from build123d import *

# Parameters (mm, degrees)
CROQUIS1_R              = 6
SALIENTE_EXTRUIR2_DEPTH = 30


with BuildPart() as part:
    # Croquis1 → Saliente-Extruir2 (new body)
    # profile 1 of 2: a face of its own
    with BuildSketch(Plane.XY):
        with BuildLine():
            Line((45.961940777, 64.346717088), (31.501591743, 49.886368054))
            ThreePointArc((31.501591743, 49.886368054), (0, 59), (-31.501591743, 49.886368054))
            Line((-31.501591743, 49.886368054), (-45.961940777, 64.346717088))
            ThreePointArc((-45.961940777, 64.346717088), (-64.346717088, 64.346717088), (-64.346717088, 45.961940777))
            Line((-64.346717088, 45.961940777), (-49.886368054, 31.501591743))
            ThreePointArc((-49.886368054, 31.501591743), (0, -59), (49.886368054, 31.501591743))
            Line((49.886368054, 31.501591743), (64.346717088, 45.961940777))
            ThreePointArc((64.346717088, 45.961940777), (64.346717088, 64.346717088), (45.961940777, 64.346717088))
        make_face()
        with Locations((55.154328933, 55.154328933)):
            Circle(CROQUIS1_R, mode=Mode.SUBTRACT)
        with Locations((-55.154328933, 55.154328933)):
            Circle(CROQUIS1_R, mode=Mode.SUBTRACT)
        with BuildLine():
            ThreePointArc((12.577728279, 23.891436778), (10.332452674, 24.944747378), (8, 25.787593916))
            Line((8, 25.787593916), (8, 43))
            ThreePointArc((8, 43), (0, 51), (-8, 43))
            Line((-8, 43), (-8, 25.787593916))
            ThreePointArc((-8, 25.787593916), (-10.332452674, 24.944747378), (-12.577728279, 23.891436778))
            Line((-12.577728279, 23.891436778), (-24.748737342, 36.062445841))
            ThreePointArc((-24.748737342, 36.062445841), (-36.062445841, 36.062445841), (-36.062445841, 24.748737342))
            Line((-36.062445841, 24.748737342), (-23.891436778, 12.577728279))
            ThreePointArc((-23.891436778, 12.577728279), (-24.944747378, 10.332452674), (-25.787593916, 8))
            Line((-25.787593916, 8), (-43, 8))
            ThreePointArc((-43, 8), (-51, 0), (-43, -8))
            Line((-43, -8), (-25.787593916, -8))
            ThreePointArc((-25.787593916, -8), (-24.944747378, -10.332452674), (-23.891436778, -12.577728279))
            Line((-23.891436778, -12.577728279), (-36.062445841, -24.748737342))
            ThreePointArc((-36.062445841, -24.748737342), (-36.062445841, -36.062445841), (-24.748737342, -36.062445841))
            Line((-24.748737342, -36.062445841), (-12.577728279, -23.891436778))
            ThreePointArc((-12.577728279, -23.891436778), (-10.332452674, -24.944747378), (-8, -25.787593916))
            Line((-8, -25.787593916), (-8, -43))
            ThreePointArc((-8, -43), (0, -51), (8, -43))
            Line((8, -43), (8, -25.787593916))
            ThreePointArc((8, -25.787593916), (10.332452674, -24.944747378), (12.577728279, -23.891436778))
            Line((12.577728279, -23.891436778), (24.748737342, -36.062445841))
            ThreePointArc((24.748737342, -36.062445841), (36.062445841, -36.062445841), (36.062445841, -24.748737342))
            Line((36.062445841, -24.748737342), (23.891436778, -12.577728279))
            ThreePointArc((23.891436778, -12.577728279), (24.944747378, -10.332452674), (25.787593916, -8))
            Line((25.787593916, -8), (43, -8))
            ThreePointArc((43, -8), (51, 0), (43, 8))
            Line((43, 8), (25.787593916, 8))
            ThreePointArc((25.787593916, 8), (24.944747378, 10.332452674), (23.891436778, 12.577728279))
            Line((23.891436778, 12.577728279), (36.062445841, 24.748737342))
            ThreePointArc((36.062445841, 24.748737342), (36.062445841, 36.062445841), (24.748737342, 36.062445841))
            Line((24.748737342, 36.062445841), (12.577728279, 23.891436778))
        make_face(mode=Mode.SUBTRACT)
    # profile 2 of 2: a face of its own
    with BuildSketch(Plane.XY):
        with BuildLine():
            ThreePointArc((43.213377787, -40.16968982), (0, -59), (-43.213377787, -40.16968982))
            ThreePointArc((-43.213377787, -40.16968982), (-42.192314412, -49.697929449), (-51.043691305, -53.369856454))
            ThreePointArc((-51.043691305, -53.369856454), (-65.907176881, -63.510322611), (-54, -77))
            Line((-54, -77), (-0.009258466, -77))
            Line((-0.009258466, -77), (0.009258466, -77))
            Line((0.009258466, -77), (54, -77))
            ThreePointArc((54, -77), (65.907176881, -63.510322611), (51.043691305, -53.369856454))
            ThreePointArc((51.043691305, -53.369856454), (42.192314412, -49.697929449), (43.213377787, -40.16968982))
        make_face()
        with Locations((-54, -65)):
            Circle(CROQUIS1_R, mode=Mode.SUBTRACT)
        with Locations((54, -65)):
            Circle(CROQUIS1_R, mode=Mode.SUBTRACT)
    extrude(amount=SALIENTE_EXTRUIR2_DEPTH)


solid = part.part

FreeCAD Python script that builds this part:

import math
import FreeCAD as App
import Part
import Sketcher
Q = App.Units.Quantity

doc = App.newDocument("Part")
body = doc.addObject("PartDesign::Body", "Body")

sketch1 = body.newObject("Sketcher::SketchObject", "Sketch")
sketch1.AttachmentSupport = (doc.getObject("XY_Plane"), [""])
sketch1.MapMode = "FlatFace"
sketch1.addGeometry([
    Part.LineSegment(App.Vector(46, 64.3, 0), App.Vector(31.5, 49.9, 0)),
    Part.ArcOfCircle(Part.Circle(App.Vector(0, 0, 0), App.Vector(0, 0, 1), 59), math.radians(58), math.radians(122)),
    Part.LineSegment(App.Vector(-31.5, 49.9, 0), App.Vector(-46, 64.3, 0)),
    Part.ArcOfCircle(Part.Circle(App.Vector(-55.2, 55.2, 0), App.Vector(0, 0, 1), 13), math.radians(45), math.radians(225)),
    Part.LineSegment(App.Vector(-64.3, 46, 0), App.Vector(-49.9, 31.5, 0)),
    Part.ArcOfCircle(Part.Circle(App.Vector(0, 0, 0), App.Vector(0, 0, 1), 59), math.radians(148), math.radians(223)),
    Part.ArcOfCircle(Part.Circle(App.Vector(-49.1, -45.6, 0), App.Vector(0, 0, 1), 8), math.radians(-104), math.radians(43)),
    Part.ArcOfCircle(Part.Circle(App.Vector(-54, -65, 0), App.Vector(0, 0, 1), 12), math.radians(76), math.radians(270)),
    Part.LineSegment(App.Vector(-54, -77, 0), App.Vector(54, -77, 0)),
    Part.ArcOfCircle(Part.Circle(App.Vector(54, -65, 0), App.Vector(0, 0, 1), 12), math.radians(-90), math.radians(104)),
    Part.ArcOfCircle(Part.Circle(App.Vector(49.1, -45.6, 0), App.Vector(0, 0, 1), 8), math.radians(137), math.radians(284)),
    Part.ArcOfCircle(Part.Circle(App.Vector(0, 0, 0), App.Vector(0, 0, 1), 59), math.radians(-43), math.radians(32)),
    Part.LineSegment(App.Vector(49.9, 31.5, 0), App.Vector(64.3, 46, 0)),
    Part.ArcOfCircle(Part.Circle(App.Vector(55.2, 55.2, 0), App.Vector(0, 0, 1), 13), math.radians(-45), math.radians(135)),
    Part.ArcOfCircle(Part.Circle(App.Vector(0, 0, 0), App.Vector(0, 0, 1), 27), math.radians(62.24), math.radians(72.76)),
    Part.LineSegment(App.Vector(12.6, 23.9, 0), App.Vector(24.7, 36.1, 0)),
    Part.ArcOfCircle(Part.Circle(App.Vector(30.4, 30.4, 0), App.Vector(0, 0, 1), 8), math.radians(-45), math.radians(135)),
    Part.LineSegment(App.Vector(36.1, 24.7, 0), App.Vector(23.9, 12.6, 0)),
    Part.ArcOfCircle(Part.Circle(App.Vector(0, 0, 0), App.Vector(0, 0, 1), 27), math.radians(17.24), math.radians(27.76)),
    Part.LineSegment(App.Vector(25.8, 8, 0), App.Vector(43, 8, 0)),
    Part.ArcOfCircle(Part.Circle(App.Vector(43, 0, 0), App.Vector(0, 0, 1), 8), math.radians(-90), math.radians(90)),
    Part.LineSegment(App.Vector(43, -8, 0), App.Vector(25.8, -8, 0)),
    Part.ArcOfCircle(Part.Circle(App.Vector(0, 0, 0), App.Vector(0, 0, 1), 27), math.radians(-27.76), math.radians(-17.24)),
    Part.LineSegment(App.Vector(23.9, -12.6, 0), App.Vector(36.1, -24.7, 0)),
    Part.ArcOfCircle(Part.Circle(App.Vector(30.4, -30.4, 0), App.Vector(0, 0, 1), 8), math.radians(-135), math.radians(45)),
    Part.LineSegment(App.Vector(24.7, -36.1, 0), App.Vector(12.6, -23.9, 0)),
    Part.ArcOfCircle(Part.Circle(App.Vector(0, 0, 0), App.Vector(0, 0, 1), 27), math.radians(-72.76), math.radians(-62.24)),
    Part.LineSegment(App.Vector(8, -25.8, 0), App.Vector(8, -43, 0)),
    Part.ArcOfCircle(Part.Circle(App.Vector(0, -43, 0), App.Vector(0, 0, 1), 8), math.radians(180), math.radians(360)),
    Part.LineSegment(App.Vector(-8, -43, 0), App.Vector(-8, -25.8, 0)),
    Part.ArcOfCircle(Part.Circle(App.Vector(0, 0, 0), App.Vector(0, 0, 1), 27), math.radians(-117.76), math.radians(-107.24)),
    Part.LineSegment(App.Vector(-12.6, -23.9, 0), App.Vector(-24.7, -36.1, 0)),
    Part.ArcOfCircle(Part.Circle(App.Vector(-30.4, -30.4, 0), App.Vector(0, 0, 1), 8), math.radians(135), math.radians(315)),
    Part.LineSegment(App.Vector(-36.1, -24.7, 0), App.Vector(-23.9, -12.6, 0)),
    Part.ArcOfCircle(Part.Circle(App.Vector(0, 0, 0), App.Vector(0, 0, 1), 27), math.radians(-162.76), math.radians(-152.24)),
    Part.LineSegment(App.Vector(-25.8, -8, 0), App.Vector(-43, -8, 0)),
    Part.ArcOfCircle(Part.Circle(App.Vector(-43, 0, 0), App.Vector(0, 0, 1), 8), math.radians(90), math.radians(270)),
    Part.LineSegment(App.Vector(-43, 8, 0), App.Vector(-25.8, 8, 0)),
    Part.ArcOfCircle(Part.Circle(App.Vector(0, 0, 0), App.Vector(0, 0, 1), 27), math.radians(152.24), math.radians(162.76)),
    Part.LineSegment(App.Vector(-23.9, 12.6, 0), App.Vector(-36.1, 24.7, 0)),
    Part.ArcOfCircle(Part.Circle(App.Vector(-30.4, 30.4, 0), App.Vector(0, 0, 1), 8), math.radians(45), math.radians(225)),
    Part.LineSegment(App.Vector(-24.7, 36.1, 0), App.Vector(-12.6, 23.9, 0)),
    Part.ArcOfCircle(Part.Circle(App.Vector(0, 0, 0), App.Vector(0, 0, 1), 27), math.radians(107.24), math.radians(117.76)),
    Part.LineSegment(App.Vector(-8, 25.8, 0), App.Vector(-8, 43, 0)),
    Part.ArcOfCircle(Part.Circle(App.Vector(0, 43, 0), App.Vector(0, 0, 1), 8), math.radians(0), math.radians(180)),
    Part.LineSegment(App.Vector(8, 43, 0), App.Vector(8, 25.8, 0)),
    Part.Circle(App.Vector(-55.2, 55.2, 0), App.Vector(0, 0, 1), 6),
    Part.Circle(App.Vector(55.2, 55.2, 0), App.Vector(0, 0, 1), 6),
    Part.Circle(App.Vector(54, -65, 0), App.Vector(0, 0, 1), 6),
    Part.Circle(App.Vector(-54, -65, 0), App.Vector(0, 0, 1), 6),
], False)
sketch1.addConstraint([
    Sketcher.Constraint("Coincident", 0, 2, 1, 1),
    Sketcher.Constraint("Coincident", 1, 2, 2, 1),
    Sketcher.Constraint("Tangent", 2, 2, 3, 1),
    Sketcher.Constraint("Tangent", 3, 2, 4, 1),
    Sketcher.Constraint("Coincident", 4, 2, 5, 1),
    Sketcher.Constraint("Tangent", 5, 2, 6, 2),
    Sketcher.Constraint("Tangent", 6, 1, 7, 1),
    Sketcher.Constraint("Tangent", 7, 2, 8, 1),
    Sketcher.Constraint("Tangent", 8, 2, 9, 1),
    Sketcher.Constraint("Tangent", 9, 2, 10, 2),
    Sketcher.Constraint("Tangent", 10, 1, 11, 1),
    Sketcher.Constraint("Coincident", 11, 2, 12, 1),
    Sketcher.Constraint("Tangent", 12, 2, 13, 1),
    Sketcher.Constraint("Tangent", 13, 2, 0, 1),
    Sketcher.Constraint("Coincident", 14, 1, 15, 1),
    Sketcher.Constraint("Tangent", 15, 2, 16, 2),
    Sketcher.Constraint("Tangent", 16, 1, 17, 1),
    Sketcher.Constraint("Coincident", 17, 2, 18, 2),
    Sketcher.Constraint("Coincident", 18, 1, 19, 1),
    Sketcher.Constraint("Tangent", 19, 2, 20, 2),
    Sketcher.Constraint("Tangent", 20, 1, 21, 1),
    Sketcher.Constraint("Coincident", 21, 2, 22, 2),
    Sketcher.Constraint("Coincident", 22, 1, 23, 1),
    Sketcher.Constraint("Tangent", 23, 2, 24, 2),
    Sketcher.Constraint("Tangent", 24, 1, 25, 1),
    Sketcher.Constraint("Coincident", 25, 2, 26, 2),
    Sketcher.Constraint("Coincident", 26, 1, 27, 1),
    Sketcher.Constraint("Tangent", 27, 2, 28, 2),
    Sketcher.Constraint("Tangent", 28, 1, 29, 1),
    Sketcher.Constraint("Coincident", 29, 2, 30, 2),
    Sketcher.Constraint("Coincident", 30, 1, 31, 1),
    Sketcher.Constraint("Tangent", 31, 2, 32, 2),
    Sketcher.Constraint("Tangent", 32, 1, 33, 1),
    Sketcher.Constraint("Coincident", 33, 2, 34, 2),
    Sketcher.Constraint("Coincident", 34, 1, 35, 1),
    Sketcher.Constraint("Tangent", 35, 2, 36, 2),
    Sketcher.Constraint("Tangent", 36, 1, 37, 1),
    Sketcher.Constraint("Coincident", 37, 2, 38, 2),
    Sketcher.Constraint("Coincident", 38, 1, 39, 1),
    Sketcher.Constraint("Tangent", 39, 2, 40, 2),
    Sketcher.Constraint("Tangent", 40, 1, 41, 1),
    Sketcher.Constraint("Coincident", 41, 2, 42, 2),
    Sketcher.Constraint("Coincident", 42, 1, 43, 1),
    Sketcher.Constraint("Tangent", 43, 2, 44, 2),
    Sketcher.Constraint("Tangent", 44, 1, 45, 1),
    Sketcher.Constraint("Coincident", 45, 2, 14, 2),
    Sketcher.Constraint("Horizontal", 8),
    Sketcher.Constraint("Horizontal", 19),
    Sketcher.Constraint("Horizontal", 21),
    Sketcher.Constraint("Vertical", 27),
    Sketcher.Constraint("Vertical", 29),
    Sketcher.Constraint("Horizontal", 35),
    Sketcher.Constraint("Horizontal", 37),
    Sketcher.Constraint("Vertical", 43),
    Sketcher.Constraint("Vertical", 45),
    Sketcher.Constraint("Coincident", 1, 3, -1, 1),
    Sketcher.Constraint("Coincident", 5, 3, -1, 1),
    Sketcher.Constraint("Coincident", 11, 3, -1, 1),
    Sketcher.Constraint("Coincident", 14, 3, -1, 1),
    Sketcher.Constraint("Coincident", 18, 3, -1, 1),
    Sketcher.Constraint("Coincident", 22, 3, -1, 1),
    Sketcher.Constraint("Coincident", 26, 3, -1, 1),
    Sketcher.Constraint("Coincident", 30, 3, -1, 1),
    Sketcher.Constraint("Coincident", 34, 3, -1, 1),
    Sketcher.Constraint("Coincident", 38, 3, -1, 1),
    Sketcher.Constraint("Coincident", 42, 3, -1, 1),
    Sketcher.Constraint("Coincident", 46, 3, 3, 3),
    Sketcher.Constraint("Coincident", 47, 3, 13, 3),
    Sketcher.Constraint("Coincident", 48, 3, 9, 3),
    Sketcher.Constraint("Coincident", 49, 3, 7, 3),
    Sketcher.Constraint("Equal", 1, 5),
    Sketcher.Constraint("Equal", 7, 9),
    Sketcher.Constraint("Equal", 6, 10),
    Sketcher.Constraint("Equal", 5, 11),
    Sketcher.Constraint("Equal", 3, 13),
    Sketcher.Constraint("Equal", 10, 16),
    Sketcher.Constraint("Equal", 14, 18),
    Sketcher.Constraint("Equal", 16, 20),
    Sketcher.Constraint("Equal", 18, 22),
    Sketcher.Constraint("Equal", 20, 24),
    Sketcher.Constraint("Equal", 22, 26),
    Sketcher.Constraint("Equal", 24, 28),
    Sketcher.Constraint("Equal", 26, 30),
    Sketcher.Constraint("Equal", 28, 32),
    Sketcher.Constraint("Equal", 30, 34),
    Sketcher.Constraint("Equal", 32, 36),
    Sketcher.Constraint("Equal", 34, 38),
    Sketcher.Constraint("Equal", 36, 40),
    Sketcher.Constraint("Equal", 38, 42),
    Sketcher.Constraint("Equal", 40, 44),
    Sketcher.Constraint("Equal", 46, 47),
    Sketcher.Constraint("Equal", 47, 48),
    Sketcher.Constraint("Equal", 48, 49),
    Sketcher.Constraint("Symmetric", 16, 3, 32, 3, -1, 1),
    Sketcher.Constraint("Symmetric", 20, 3, 36, 3, -1, 1),
    Sketcher.Constraint("Symmetric", 24, 3, 40, 3, -1, 1),
    Sketcher.Constraint("Symmetric", 28, 3, 44, 3, -1, 1),
    Sketcher.Constraint("Symmetric", 3, 3, 13, 3, -2),
    Sketcher.Constraint("Symmetric", 24, 3, 32, 3, -2),
    Sketcher.Constraint("PointOnObject", 20, 3, -1),
    Sketcher.Constraint("PointOnObject", 28, 3, -2),
    Sketcher.Constraint("Perpendicular", 0, 2),
    Sketcher.Constraint("Parallel", 2, 4),
    Sketcher.Constraint("Perpendicular", 4, 12),
    Sketcher.Constraint("Parallel", 12, 15),
    Sketcher.Constraint("Parallel", 15, 17),
    Sketcher.Constraint("Perpendicular", 17, 23),
    Sketcher.Constraint("Parallel", 23, 25),
    Sketcher.Constraint("Perpendicular", 25, 31),
    Sketcher.Constraint("Parallel", 31, 33),
    Sketcher.Constraint("Perpendicular", 33, 39),
    Sketcher.Constraint("Parallel", 39, 41),
    Sketcher.Constraint("Horizontal", 6, 3, 10, 3),
    Sketcher.Constraint("Horizontal", 0, 2, 1, 2),
    Sketcher.Constraint("Equal", 37, 27),
    Sketcher.Constraint("Equal", 2, 4),
    Sketcher.Constraint("Equal", 15, 17),
    Sketcher.Constraint("Diameter", 46, Q("12 mm")),
    Sketcher.Constraint("Radius", 1, Q("59 mm")),
    Sketcher.Constraint("Radius", 3, Q("13 mm")),
    Sketcher.Constraint("Radius", 6, Q("8 mm")),
    Sketcher.Constraint("Radius", 7, Q("12 mm")),
    Sketcher.Constraint("Radius", 14, Q("27 mm")),
    Sketcher.Constraint("DistanceX", 8, 1, 8, 2, Q("108 mm")),
    Sketcher.Constraint("DistanceY", 7, 3, -1, 1, Q("65 mm")),
    Sketcher.Constraint("DistanceX", -1, 1, 20, 3, Q("43 mm")),
    Sketcher.Constraint("Distance", 0, Q("20.450022 mm")),
    Sketcher.Constraint("DistanceX", -1, 1, 16, 3, Q("30.405592 mm")),
])
pad1 = body.newObject("PartDesign::Pad", "Pad")
pad1.Profile = sketch1
pad1.Length = 30

doc.recompute()
